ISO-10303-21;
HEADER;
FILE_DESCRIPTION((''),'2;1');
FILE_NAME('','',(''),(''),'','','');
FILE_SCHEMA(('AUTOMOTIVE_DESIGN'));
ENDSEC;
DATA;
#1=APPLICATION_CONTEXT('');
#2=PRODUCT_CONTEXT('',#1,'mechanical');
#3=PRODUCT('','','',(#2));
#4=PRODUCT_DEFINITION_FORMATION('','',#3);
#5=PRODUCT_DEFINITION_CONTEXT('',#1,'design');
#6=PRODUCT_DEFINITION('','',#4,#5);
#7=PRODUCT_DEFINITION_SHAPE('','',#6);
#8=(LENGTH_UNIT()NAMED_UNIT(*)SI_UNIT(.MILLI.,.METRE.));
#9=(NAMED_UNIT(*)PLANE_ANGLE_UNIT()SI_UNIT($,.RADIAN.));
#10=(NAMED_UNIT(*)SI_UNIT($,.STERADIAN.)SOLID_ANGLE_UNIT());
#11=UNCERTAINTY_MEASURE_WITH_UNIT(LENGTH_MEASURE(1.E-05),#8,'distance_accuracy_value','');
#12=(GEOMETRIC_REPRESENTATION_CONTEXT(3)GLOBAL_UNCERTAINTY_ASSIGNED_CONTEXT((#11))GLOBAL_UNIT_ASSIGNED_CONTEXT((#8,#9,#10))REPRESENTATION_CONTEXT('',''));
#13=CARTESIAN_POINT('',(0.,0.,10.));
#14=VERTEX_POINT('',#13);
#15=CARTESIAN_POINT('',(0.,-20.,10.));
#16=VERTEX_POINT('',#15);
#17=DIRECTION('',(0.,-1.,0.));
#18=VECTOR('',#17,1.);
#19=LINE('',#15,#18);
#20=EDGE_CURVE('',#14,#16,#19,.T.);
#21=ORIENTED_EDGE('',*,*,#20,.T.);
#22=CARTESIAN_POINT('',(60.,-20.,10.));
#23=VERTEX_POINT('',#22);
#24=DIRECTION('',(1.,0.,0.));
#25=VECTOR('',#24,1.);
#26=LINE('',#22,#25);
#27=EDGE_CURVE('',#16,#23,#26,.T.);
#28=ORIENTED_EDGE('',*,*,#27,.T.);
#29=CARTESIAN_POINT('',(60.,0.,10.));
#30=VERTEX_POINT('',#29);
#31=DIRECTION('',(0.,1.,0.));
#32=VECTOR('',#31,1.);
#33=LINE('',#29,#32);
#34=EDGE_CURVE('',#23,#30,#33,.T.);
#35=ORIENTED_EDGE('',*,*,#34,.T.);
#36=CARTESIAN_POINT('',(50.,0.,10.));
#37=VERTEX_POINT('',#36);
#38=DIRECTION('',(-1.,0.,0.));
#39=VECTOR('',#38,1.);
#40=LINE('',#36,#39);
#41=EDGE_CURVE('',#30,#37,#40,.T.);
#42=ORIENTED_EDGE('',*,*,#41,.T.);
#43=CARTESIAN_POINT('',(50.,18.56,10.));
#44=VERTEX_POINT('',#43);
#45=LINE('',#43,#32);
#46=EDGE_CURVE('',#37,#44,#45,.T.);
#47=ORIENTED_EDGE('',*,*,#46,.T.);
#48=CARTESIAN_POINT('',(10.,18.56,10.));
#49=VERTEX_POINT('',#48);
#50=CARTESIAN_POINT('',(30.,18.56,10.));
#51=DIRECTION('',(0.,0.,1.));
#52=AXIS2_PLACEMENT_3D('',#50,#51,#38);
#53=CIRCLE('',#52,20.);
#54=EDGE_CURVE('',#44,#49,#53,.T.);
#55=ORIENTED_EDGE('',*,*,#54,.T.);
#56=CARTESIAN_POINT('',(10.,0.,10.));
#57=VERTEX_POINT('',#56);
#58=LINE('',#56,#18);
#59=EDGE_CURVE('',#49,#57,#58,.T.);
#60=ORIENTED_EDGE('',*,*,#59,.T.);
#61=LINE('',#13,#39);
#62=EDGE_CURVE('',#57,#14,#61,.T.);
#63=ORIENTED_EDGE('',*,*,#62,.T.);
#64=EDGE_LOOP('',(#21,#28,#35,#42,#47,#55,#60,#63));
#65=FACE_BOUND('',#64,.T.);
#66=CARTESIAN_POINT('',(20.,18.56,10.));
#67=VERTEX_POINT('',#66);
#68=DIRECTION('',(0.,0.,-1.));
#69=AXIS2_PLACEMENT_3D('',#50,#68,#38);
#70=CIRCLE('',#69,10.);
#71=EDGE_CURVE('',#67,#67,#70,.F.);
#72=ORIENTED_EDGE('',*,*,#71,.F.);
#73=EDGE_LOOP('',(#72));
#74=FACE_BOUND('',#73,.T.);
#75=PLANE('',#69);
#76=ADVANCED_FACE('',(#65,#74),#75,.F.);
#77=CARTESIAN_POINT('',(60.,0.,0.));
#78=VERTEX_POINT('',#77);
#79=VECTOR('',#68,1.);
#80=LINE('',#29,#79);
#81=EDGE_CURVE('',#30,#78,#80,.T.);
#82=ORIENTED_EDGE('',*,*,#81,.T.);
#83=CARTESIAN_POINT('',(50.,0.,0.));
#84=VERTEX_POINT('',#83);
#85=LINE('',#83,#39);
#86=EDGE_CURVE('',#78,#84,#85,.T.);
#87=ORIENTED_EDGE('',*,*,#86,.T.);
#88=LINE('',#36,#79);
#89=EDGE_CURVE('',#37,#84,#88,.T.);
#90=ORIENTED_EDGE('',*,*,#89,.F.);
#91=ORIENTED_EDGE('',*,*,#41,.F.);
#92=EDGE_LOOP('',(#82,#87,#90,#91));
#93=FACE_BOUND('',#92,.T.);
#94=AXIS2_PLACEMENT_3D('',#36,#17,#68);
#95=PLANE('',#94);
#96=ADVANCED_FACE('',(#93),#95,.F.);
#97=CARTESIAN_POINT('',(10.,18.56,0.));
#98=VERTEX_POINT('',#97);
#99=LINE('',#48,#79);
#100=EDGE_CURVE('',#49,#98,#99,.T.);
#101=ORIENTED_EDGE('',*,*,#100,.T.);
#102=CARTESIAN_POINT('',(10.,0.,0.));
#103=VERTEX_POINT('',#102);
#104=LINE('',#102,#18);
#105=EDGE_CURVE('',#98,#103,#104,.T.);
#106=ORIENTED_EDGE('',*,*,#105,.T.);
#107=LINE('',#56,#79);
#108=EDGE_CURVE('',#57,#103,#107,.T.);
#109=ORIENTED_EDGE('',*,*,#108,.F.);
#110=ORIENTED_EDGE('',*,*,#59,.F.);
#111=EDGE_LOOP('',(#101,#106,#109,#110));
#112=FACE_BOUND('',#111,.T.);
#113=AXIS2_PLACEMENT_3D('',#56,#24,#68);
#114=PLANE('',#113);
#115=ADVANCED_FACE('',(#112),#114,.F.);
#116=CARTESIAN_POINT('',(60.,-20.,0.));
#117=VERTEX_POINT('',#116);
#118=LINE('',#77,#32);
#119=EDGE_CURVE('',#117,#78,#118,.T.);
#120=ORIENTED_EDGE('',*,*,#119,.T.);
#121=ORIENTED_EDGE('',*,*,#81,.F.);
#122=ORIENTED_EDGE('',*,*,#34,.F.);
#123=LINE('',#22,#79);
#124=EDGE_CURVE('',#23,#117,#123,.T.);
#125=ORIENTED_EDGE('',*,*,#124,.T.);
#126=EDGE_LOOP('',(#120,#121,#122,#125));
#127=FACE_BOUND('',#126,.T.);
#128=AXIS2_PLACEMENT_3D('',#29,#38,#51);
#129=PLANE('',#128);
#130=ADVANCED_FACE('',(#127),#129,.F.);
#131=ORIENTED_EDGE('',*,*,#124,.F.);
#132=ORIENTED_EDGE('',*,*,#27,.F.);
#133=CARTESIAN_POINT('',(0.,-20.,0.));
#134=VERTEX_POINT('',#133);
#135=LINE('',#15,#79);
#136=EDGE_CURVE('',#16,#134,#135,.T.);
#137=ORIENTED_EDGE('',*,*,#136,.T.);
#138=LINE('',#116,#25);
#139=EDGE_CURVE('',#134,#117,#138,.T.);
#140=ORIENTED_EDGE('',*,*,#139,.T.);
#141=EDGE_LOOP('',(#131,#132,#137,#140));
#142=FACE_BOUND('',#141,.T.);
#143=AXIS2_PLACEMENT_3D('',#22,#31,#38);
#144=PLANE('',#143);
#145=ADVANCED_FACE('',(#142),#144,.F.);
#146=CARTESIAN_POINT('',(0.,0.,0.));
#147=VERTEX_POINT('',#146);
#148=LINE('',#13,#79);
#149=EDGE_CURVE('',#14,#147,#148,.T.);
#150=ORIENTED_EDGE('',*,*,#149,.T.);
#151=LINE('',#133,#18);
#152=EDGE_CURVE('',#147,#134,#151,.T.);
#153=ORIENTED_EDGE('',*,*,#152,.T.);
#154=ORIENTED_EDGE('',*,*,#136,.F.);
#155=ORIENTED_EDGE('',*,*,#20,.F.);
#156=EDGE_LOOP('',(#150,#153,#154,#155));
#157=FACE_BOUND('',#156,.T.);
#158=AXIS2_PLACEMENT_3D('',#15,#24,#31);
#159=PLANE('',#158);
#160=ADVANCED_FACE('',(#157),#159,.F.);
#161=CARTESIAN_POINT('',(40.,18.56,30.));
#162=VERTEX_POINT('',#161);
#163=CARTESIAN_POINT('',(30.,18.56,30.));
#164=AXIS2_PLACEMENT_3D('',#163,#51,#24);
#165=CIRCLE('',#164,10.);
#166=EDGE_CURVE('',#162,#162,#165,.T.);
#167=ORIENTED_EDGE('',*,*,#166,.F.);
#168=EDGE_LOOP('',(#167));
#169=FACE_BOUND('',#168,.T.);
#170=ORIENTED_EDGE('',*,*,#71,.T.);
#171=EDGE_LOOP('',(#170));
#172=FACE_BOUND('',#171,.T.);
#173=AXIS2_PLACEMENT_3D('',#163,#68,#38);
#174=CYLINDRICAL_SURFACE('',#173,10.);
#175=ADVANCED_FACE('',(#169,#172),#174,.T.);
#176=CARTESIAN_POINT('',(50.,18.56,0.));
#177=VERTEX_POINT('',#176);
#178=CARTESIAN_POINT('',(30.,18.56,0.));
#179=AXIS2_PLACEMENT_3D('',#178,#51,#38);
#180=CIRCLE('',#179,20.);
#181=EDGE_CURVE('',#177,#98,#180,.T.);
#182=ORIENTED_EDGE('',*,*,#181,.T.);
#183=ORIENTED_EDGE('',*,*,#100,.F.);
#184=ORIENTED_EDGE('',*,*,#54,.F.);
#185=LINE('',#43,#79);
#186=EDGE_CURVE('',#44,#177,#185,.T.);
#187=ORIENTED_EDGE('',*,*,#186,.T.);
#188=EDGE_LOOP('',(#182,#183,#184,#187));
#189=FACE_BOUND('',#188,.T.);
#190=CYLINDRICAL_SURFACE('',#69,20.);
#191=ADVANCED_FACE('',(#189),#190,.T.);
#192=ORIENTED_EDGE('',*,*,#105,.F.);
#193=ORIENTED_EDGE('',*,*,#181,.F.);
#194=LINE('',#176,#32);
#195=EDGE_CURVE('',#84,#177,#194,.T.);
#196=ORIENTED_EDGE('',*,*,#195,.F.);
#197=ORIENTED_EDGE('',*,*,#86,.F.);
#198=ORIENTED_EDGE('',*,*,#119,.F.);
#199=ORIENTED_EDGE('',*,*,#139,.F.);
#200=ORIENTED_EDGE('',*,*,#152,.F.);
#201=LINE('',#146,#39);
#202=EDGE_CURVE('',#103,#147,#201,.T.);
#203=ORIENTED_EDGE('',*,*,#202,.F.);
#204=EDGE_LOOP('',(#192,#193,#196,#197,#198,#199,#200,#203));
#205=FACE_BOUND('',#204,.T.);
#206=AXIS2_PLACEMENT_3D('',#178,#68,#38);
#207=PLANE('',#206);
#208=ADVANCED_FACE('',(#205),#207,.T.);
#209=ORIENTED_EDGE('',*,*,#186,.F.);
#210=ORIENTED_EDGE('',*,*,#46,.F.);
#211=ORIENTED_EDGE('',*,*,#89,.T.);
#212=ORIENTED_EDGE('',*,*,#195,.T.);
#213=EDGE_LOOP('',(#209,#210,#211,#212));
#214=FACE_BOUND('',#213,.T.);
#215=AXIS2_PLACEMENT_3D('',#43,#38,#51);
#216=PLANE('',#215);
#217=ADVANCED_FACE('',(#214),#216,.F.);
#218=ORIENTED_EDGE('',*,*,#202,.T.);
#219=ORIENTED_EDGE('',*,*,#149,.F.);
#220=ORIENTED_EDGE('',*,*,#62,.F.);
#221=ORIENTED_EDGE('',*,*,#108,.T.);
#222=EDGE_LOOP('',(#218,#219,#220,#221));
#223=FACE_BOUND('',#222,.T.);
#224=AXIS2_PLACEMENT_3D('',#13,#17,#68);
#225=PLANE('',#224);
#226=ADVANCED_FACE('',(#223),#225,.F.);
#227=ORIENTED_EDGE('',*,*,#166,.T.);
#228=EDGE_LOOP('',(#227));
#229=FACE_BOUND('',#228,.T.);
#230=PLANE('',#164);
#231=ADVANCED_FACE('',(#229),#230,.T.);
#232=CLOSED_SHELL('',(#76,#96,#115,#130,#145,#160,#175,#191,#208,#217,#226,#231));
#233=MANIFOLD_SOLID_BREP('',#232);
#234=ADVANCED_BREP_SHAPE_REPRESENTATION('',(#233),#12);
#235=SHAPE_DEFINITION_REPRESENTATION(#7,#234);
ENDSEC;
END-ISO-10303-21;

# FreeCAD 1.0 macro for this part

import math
import FreeCAD as App
import Part
import Sketcher
from FreeCAD import Vector

doc = App.newDocument("Part")
body = doc.addObject("PartDesign::Body", "Body")

# Sketch on XY plane
sketch1 = doc.addObject("Sketcher::SketchObject", "Sketch")
body.addObject(sketch1)
sketch1.AttachmentSupport = (doc.XY_Plane, [""])
sketch1.MapMode = "FlatFace"
sketch1.addGeometry(Part.LineSegment(Vector(10, 0, 0), Vector(0, 0, 0)), False)
sketch1.addGeometry(Part.LineSegment(Vector(0, 0, 0), Vector(0, -20, 0)), False)
sketch1.addGeometry(Part.LineSegment(Vector(0, -20, 0), Vector(60, -20, 0)), False)
sketch1.addGeometry(Part.LineSegment(Vector(60, -20, 0), Vector(60, 0, 0)), False)
sketch1.addGeometry(Part.LineSegment(Vector(60, 0, 0), Vector(50, 0, 0)), False)
sketch1.addGeometry(Part.LineSegment(Vector(50, 0, 0), Vector(50, 19, 0)), False)
sketch1.addGeometry(Part.ArcOfCircle(Part.Circle(Vector(30, 19, 0), Vector(0, 0, 1), 20), math.radians(0), math.radians(180)), False)
sketch1.addGeometry(Part.LineSegment(Vector(10, 19, 0), Vector(10, 0, 0)), False)
sketch1.addConstraint(Sketcher.Constraint("Coincident", 0, 2, 1, 1))
sketch1.addConstraint(Sketcher.Constraint("Coincident", 1, 2, 2, 1))
sketch1.addConstraint(Sketcher.Constraint("Coincident", 2, 2, 3, 1))
sketch1.addConstraint(Sketcher.Constraint("Coincident", 3, 2, 4, 1))
sketch1.addConstraint(Sketcher.Constraint("Coincident", 4, 2, 5, 1))
sketch1.addConstraint(Sketcher.Constraint("Tangent", 5, 2, 6, 1))
sketch1.addConstraint(Sketcher.Constraint("Tangent", 6, 2, 7, 1))
sketch1.addConstraint(Sketcher.Constraint("Coincident", 7, 2, 0, 1))
sketch1.addConstraint(Sketcher.Constraint("Horizontal", 0))
sketch1.addConstraint(Sketcher.Constraint("Vertical", 1))
sketch1.addConstraint(Sketcher.Constraint("Horizontal", 2))
sketch1.addConstraint(Sketcher.Constraint("Vertical", 3))
sketch1.addConstraint(Sketcher.Constraint("Horizontal", 4))
sketch1.addConstraint(Sketcher.Constraint("Vertical", 5))
sketch1.addConstraint(Sketcher.Constraint("Vertical", 7))
sketch1.addConstraint(Sketcher.Constraint("Coincident", 0, 2, -1, 1))
sketch1.addConstraint(Sketcher.Constraint("PointOnObject", 3, 2, -1))
sketch1.addConstraint(Sketcher.Constraint("Equal", 0, 4))
sketch1.addConstraint(Sketcher.Constraint("Radius", 6, 20.0))
sketch1.addConstraint(Sketcher.Constraint("DistanceX", 0, 2, 0, 1, 10.0))
sketch1.addConstraint(Sketcher.Constraint("DistanceY", 1, 2, 1, 1, 20.0))
sketch1.addConstraint(Sketcher.Constraint("DistanceY", 5, 1, 5, 2, 18.56))
pad1 = doc.addObject("PartDesign::Pad", "Pad")
body.addObject(pad1)
pad1.Profile = sketch1
pad1.Length = 10

# Sketch on XY plane
sketch2 = doc.addObject("Sketcher::SketchObject", "Sketch001")
body.addObject(sketch2)
sketch2.AttachmentSupport = (doc.XY_Plane, [""])
sketch2.MapMode = "FlatFace"
sketch2.AttachmentOffset = App.Placement(Vector(0, 0, 10), App.Rotation())
sketch2.addGeometry(Part.Circle(Vector(30, 19, 0), Vector(0, 0, 1), 10), False)
sketch2.addConstraint(Sketcher.Constraint("Diameter", 0, 20.0))
sketch2.addConstraint(Sketcher.Constraint("DistanceX", -1, 1, 0, 3, 30.0))
sketch2.addConstraint(Sketcher.Constraint("DistanceY", -1, 1, 0, 3, 18.56))
pad2 = doc.addObject("PartDesign::Pad", "Pad001")
body.addObject(pad2)
pad2.Profile = sketch2
pad2.Length = 20

doc.recompute()
